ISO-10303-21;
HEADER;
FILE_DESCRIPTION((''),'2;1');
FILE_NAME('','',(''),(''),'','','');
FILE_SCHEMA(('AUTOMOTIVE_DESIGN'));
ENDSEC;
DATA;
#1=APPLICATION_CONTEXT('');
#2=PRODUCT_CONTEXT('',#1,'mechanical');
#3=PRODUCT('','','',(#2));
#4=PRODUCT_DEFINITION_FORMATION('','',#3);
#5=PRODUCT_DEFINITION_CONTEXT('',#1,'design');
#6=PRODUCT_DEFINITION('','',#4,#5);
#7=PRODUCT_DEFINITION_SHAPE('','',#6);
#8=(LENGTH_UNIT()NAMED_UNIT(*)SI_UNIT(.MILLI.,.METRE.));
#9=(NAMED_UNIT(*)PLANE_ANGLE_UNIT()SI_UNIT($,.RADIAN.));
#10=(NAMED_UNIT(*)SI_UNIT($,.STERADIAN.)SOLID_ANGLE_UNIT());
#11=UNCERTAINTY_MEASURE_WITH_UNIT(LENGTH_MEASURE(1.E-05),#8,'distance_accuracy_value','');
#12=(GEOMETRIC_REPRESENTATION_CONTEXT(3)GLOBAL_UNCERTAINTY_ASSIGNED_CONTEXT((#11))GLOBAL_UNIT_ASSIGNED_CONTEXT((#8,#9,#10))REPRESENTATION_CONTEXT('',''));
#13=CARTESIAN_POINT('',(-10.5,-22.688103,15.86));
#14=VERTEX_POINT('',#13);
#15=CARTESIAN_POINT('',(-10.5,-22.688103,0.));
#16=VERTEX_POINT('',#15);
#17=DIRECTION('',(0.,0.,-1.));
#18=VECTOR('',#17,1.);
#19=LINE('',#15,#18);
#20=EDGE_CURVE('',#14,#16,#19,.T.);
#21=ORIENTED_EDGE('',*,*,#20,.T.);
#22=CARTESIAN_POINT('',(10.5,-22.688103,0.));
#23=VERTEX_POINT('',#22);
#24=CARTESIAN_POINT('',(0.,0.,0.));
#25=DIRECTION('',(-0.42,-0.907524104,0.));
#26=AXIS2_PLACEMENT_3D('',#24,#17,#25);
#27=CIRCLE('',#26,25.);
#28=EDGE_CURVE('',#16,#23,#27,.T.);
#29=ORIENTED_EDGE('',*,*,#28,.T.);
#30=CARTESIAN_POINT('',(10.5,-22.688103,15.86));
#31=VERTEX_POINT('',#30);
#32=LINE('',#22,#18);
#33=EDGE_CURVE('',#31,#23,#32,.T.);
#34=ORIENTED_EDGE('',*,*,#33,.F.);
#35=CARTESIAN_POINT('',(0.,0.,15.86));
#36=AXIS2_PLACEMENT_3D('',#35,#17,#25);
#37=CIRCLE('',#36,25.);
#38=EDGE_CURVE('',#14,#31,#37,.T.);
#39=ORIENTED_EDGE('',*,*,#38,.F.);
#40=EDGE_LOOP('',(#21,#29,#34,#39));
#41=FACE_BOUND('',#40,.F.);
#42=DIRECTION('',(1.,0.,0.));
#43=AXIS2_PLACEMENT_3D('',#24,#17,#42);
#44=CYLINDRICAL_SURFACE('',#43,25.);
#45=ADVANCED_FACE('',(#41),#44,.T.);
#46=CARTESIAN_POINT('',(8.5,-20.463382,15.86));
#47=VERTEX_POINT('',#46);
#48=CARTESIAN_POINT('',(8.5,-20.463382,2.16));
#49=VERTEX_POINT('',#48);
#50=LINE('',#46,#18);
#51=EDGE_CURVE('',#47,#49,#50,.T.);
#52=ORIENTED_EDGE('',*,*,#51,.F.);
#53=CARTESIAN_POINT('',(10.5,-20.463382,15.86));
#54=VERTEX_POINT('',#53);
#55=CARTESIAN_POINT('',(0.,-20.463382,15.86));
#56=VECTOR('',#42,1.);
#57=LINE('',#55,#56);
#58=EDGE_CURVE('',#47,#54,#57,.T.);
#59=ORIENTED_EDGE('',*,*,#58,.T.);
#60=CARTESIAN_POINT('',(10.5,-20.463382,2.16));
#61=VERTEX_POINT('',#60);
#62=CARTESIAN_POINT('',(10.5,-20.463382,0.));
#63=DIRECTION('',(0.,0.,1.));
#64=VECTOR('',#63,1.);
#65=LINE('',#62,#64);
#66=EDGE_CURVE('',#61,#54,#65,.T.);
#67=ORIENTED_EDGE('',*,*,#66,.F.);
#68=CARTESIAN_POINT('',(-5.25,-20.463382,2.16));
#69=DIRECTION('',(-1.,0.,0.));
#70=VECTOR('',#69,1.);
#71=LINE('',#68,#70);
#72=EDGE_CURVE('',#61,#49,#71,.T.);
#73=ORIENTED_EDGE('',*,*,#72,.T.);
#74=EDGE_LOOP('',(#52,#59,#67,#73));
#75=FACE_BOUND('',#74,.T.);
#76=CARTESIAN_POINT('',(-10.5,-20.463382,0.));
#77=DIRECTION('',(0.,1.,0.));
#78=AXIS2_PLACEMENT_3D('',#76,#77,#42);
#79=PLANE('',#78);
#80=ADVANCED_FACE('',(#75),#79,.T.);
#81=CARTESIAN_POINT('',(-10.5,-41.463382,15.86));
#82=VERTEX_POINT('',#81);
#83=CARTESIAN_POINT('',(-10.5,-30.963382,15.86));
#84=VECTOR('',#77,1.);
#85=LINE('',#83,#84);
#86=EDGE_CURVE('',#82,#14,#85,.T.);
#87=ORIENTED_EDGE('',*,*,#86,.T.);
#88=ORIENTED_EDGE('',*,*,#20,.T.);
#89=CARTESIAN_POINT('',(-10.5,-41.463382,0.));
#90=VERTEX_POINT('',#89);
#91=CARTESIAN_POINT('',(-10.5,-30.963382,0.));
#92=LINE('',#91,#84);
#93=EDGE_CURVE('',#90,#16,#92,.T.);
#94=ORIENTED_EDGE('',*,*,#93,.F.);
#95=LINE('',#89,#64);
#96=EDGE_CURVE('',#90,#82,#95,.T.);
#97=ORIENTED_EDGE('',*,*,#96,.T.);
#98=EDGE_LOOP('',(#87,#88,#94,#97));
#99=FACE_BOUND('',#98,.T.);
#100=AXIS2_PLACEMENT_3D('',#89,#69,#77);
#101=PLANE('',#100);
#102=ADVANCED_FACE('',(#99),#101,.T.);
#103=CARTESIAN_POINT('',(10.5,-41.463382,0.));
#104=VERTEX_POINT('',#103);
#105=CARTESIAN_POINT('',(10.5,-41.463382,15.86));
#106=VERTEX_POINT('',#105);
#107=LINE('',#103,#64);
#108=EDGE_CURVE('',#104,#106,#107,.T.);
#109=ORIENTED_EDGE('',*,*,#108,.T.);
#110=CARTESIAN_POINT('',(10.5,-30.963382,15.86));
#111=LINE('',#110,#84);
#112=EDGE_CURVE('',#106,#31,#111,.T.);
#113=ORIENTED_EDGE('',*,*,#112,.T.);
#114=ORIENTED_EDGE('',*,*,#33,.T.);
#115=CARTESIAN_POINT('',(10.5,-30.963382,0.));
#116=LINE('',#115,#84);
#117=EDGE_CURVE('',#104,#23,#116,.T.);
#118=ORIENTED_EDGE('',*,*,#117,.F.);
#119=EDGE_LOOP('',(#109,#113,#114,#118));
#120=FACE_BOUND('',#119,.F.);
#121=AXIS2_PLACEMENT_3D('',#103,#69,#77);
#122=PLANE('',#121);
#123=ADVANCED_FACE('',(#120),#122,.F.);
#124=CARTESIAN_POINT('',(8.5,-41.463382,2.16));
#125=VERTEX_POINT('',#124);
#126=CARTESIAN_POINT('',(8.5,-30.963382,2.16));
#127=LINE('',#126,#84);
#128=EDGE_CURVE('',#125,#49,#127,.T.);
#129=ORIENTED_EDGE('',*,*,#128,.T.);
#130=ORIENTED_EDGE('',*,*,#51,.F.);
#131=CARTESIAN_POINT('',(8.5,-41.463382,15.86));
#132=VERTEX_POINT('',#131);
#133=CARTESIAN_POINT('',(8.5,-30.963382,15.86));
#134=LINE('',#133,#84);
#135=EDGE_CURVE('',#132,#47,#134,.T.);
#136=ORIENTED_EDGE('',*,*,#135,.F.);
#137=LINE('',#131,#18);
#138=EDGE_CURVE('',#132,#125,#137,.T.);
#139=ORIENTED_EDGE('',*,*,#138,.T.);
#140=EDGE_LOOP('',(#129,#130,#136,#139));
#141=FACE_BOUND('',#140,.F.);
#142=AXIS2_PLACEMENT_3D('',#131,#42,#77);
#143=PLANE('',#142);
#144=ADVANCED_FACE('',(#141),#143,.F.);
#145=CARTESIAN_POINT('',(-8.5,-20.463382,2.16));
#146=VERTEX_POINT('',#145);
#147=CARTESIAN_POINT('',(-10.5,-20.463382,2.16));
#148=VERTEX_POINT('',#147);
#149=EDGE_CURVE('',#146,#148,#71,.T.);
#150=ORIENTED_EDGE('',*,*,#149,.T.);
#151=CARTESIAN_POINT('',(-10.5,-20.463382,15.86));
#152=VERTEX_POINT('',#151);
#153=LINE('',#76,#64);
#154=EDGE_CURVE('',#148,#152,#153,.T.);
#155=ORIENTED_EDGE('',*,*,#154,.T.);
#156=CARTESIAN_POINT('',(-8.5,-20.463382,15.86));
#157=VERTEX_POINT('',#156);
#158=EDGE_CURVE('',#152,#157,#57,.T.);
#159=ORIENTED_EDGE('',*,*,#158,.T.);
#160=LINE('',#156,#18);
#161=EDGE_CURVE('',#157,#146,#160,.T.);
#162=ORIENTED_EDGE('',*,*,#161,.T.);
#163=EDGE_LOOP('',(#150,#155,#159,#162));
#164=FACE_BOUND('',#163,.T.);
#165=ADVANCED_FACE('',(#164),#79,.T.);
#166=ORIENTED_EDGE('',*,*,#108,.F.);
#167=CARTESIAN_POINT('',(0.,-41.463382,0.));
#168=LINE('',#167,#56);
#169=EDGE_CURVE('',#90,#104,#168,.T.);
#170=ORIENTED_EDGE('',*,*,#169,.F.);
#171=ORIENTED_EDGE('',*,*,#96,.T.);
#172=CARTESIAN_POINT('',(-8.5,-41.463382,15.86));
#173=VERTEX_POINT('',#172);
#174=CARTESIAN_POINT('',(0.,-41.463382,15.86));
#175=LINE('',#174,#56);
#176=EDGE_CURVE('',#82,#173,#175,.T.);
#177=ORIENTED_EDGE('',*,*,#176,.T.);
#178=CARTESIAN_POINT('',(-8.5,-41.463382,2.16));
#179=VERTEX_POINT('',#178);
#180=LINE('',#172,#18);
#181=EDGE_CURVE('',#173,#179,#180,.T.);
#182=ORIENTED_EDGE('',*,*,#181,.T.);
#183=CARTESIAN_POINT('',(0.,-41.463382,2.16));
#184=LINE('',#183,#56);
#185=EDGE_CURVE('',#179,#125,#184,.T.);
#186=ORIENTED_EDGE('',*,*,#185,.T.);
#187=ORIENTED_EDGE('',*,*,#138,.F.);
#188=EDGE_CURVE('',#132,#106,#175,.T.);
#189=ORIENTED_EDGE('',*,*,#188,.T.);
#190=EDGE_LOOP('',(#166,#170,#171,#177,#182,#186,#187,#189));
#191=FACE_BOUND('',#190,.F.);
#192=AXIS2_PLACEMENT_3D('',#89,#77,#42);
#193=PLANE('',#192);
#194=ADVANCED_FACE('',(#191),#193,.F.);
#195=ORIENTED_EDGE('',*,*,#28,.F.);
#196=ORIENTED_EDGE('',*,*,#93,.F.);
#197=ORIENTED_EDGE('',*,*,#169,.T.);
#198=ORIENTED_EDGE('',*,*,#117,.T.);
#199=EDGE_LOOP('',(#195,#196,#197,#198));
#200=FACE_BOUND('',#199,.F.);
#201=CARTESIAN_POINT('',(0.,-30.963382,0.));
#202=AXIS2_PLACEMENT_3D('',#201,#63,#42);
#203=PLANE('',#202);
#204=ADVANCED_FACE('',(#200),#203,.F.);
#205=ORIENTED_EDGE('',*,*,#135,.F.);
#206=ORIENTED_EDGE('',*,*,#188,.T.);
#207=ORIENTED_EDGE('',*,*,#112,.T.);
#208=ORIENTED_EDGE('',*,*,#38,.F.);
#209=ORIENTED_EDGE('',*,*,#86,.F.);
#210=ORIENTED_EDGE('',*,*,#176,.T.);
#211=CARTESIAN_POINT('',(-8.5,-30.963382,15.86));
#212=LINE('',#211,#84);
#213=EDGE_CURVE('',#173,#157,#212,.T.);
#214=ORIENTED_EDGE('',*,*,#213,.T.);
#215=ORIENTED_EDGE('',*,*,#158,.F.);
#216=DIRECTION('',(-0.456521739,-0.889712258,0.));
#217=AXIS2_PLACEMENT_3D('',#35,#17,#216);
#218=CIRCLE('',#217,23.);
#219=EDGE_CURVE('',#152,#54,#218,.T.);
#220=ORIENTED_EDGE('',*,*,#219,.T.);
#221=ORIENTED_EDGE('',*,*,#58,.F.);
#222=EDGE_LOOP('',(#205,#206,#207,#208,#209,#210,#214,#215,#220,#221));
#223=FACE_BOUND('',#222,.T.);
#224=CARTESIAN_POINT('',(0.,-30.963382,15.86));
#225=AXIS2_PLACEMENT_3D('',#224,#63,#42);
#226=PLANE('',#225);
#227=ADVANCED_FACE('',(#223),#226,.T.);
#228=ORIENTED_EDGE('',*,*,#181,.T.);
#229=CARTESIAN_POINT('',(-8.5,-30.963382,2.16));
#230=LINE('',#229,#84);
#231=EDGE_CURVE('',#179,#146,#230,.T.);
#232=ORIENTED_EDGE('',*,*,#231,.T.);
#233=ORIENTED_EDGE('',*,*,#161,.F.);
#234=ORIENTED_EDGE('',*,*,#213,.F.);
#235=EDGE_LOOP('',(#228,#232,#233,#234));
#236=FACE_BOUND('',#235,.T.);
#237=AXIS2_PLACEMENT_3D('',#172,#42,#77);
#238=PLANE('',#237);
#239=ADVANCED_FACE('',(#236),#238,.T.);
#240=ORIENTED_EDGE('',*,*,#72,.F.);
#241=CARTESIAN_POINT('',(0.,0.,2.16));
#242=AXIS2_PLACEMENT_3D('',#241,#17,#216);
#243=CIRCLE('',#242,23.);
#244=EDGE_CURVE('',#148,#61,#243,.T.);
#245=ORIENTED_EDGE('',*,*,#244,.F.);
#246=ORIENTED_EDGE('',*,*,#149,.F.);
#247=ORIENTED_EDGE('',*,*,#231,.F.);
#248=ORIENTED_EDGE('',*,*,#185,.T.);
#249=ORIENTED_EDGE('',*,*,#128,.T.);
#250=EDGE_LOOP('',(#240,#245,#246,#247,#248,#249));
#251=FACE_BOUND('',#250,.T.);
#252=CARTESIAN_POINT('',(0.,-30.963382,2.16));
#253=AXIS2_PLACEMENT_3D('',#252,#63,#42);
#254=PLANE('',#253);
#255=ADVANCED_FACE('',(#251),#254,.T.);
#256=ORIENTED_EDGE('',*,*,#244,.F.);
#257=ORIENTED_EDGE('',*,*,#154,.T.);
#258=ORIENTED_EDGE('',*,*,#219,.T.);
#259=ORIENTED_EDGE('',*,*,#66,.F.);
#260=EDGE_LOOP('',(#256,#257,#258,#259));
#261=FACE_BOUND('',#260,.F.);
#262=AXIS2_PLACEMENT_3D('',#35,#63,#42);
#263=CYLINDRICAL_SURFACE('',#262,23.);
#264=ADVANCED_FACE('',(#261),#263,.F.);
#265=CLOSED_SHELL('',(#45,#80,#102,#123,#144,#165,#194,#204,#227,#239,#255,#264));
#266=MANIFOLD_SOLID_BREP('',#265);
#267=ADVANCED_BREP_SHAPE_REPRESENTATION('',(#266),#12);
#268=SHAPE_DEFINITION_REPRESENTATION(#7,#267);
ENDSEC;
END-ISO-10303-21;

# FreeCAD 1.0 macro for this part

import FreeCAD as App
import Part
import Sketcher

V = App.Vector
Q = App.Units.Quantity

doc = App.newDocument("Part")
params = doc.addObject("Spreadsheet::Sheet", "Params")
for row, (alias, value) in enumerate([
    ("sketch1_diameter", "50 mm"),
    ("pad1_length", "15.86 mm"),
    ("sketch2_diameter", "46 mm"),
    ("pocket1_length", "13.7 mm"),
    ("sketch3_width", "21 mm"),
    ("pad2_length", "15.86 mm"),
    ("sketch4_width", "17 mm"),
    ("sketch4_height", "21 mm"),
    ("pocket2_length", "13.7 mm"),
], start=1):
    params.set(f"A{row}", alias)
    params.set(f"B{row}", "=" + value)
    params.setAlias(f"B{row}", alias)

body = doc.addObject("PartDesign::Body", "Body")

sketch1 = body.newObject("Sketcher::SketchObject", "Sketch")
sketch1.AttachmentSupport = (doc.getObject("XY_Plane"), [""])
sketch1.MapMode = "FlatFace"
sketch1.addGeometry(Part.Circle(V(0, 0, 0), V(0, 0, 1), 25), False)
sketch1.addConstraint([
    Sketcher.Constraint("Coincident", 0, 3, -1, 1),
    Sketcher.Constraint("Diameter", 0, Q("50 mm")),
])
sketch1.setExpression("Constraints[1]", "Params.sketch1_diameter")
pad1 = body.newObject("PartDesign::Pad", "Pad")
pad1.Profile = sketch1
pad1.setExpression("Length", "Params.pad1_length")

sketch2 = body.newObject("Sketcher::SketchObject", "Sketch001")
sketch2.AttachmentSupport = (doc.getObject("XY_Plane"), [""])
sketch2.MapMode = "FlatFace"
sketch2.AttachmentOffset = App.Placement(V(0, 0, 15.86), App.Rotation())
sketch2.addGeometry(Part.Circle(V(0, 0, 0), V(0, 0, 1), 23), False)
sketch2.addConstraint([
    Sketcher.Constraint("Coincident", 0, 3, -1, 1),
    Sketcher.Constraint("Diameter", 0, Q("46 mm")),
])
sketch2.setExpression("Constraints[1]", "Params.sketch2_diameter")
pocket1 = body.newObject("PartDesign::Pocket", "Pocket")
pocket1.Profile = sketch2
pocket1.setExpression("Length", "Params.pocket1_length")

sketch3 = body.newObject("Sketcher::SketchObject", "Sketch002")
sketch3.AttachmentSupport = (doc.getObject("XY_Plane"), [""])
sketch3.MapMode = "FlatFace"
sketch3.addGeometry([
    Part.LineSegment(V(-10, -20, 0), V(-10, -41, 0)),
    Part.LineSegment(V(-10, -41, 0), V(10, -41, 0)),
    Part.LineSegment(V(10, -41, 0), V(10, -20, 0)),
    Part.LineSegment(V(10, -20, 0), V(-10, -20, 0)),
], False)
sketch3.addConstraint([
    Sketcher.Constraint("Coincident", 0, 2, 1, 1),
    Sketcher.Constraint("Coincident", 1, 2, 2, 1),
    Sketcher.Constraint("Coincident", 2, 2, 3, 1),
    Sketcher.Constraint("Coincident", 3, 2, 0, 1),
    Sketcher.Constraint("Vertical", 0),
    Sketcher.Constraint("Horizontal", 1),
    Sketcher.Constraint("Vertical", 2),
    Sketcher.Constraint("Horizontal", 3),
    Sketcher.Constraint("Equal", 3, 0),
    Sketcher.Constraint("DistanceX", 1, 1, 1, 2, Q("21 mm")),
    Sketcher.Constraint("DistanceX", 0, 2, -1, 1, Q("10.5 mm")),
    Sketcher.Constraint("DistanceY", 0, 2, -1, 1, Q("41.463382 mm")),
])
sketch3.setExpression("Constraints[9]", "Params.sketch3_width")
pad2 = body.newObject("PartDesign::Pad", "Pad001")
pad2.Profile = sketch3
pad2.setExpression("Length", "Params.pad2_length")

sketch4 = body.newObject("Sketcher::SketchObject", "Sketch003")
sketch4.AttachmentSupport = (doc.getObject("XY_Plane"), [""])
sketch4.MapMode = "FlatFace"
sketch4.AttachmentOffset = App.Placement(V(0, 0, 15.86), App.Rotation())
sketch4.addGeometry([
    Part.LineSegment(V(-8, -20, 0), V(-8, -41, 0)),
    Part.LineSegment(V(-8, -41, 0), V(8, -41, 0)),
    Part.LineSegment(V(8, -41, 0), V(8, -20, 0)),
    Part.LineSegment(V(8, -20, 0), V(-8, -20, 0)),
], False)
sketch4.addConstraint([
    Sketcher.Constraint("Coincident", 0, 2, 1, 1),
    Sketcher.Constraint("Coincident", 1, 2, 2, 1),
    Sketcher.Constraint("Coincident", 2, 2, 3, 1),
    Sketcher.Constraint("Coincident", 3, 2, 0, 1),
    Sketcher.Constraint("Vertical", 0),
    Sketcher.Constraint("Horizontal", 1),
    Sketcher.Constraint("Vertical", 2),
    Sketcher.Constraint("Horizontal", 3),
    Sketcher.Constraint("DistanceX", 1, 1, 1, 2, Q("17 mm")),
    Sketcher.Constraint("DistanceY", 0, 2, 0, 1, Q("21 mm")),
    Sketcher.Constraint("DistanceX", 0, 2, -1, 1, Q("8.5 mm")),
    Sketcher.Constraint("DistanceY", 0, 2, -1, 1, Q("41.463382 mm")),
])
sketch4.setExpression("Constraints[8]", "Params.sketch4_width")
sketch4.setExpression("Constraints[9]", "Params.sketch4_height")
pocket2 = body.newObject("PartDesign::Pocket", "Pocket001")
pocket2.Profile = sketch4
pocket2.setExpression("Length", "Params.pocket2_length")

doc.recompute()
